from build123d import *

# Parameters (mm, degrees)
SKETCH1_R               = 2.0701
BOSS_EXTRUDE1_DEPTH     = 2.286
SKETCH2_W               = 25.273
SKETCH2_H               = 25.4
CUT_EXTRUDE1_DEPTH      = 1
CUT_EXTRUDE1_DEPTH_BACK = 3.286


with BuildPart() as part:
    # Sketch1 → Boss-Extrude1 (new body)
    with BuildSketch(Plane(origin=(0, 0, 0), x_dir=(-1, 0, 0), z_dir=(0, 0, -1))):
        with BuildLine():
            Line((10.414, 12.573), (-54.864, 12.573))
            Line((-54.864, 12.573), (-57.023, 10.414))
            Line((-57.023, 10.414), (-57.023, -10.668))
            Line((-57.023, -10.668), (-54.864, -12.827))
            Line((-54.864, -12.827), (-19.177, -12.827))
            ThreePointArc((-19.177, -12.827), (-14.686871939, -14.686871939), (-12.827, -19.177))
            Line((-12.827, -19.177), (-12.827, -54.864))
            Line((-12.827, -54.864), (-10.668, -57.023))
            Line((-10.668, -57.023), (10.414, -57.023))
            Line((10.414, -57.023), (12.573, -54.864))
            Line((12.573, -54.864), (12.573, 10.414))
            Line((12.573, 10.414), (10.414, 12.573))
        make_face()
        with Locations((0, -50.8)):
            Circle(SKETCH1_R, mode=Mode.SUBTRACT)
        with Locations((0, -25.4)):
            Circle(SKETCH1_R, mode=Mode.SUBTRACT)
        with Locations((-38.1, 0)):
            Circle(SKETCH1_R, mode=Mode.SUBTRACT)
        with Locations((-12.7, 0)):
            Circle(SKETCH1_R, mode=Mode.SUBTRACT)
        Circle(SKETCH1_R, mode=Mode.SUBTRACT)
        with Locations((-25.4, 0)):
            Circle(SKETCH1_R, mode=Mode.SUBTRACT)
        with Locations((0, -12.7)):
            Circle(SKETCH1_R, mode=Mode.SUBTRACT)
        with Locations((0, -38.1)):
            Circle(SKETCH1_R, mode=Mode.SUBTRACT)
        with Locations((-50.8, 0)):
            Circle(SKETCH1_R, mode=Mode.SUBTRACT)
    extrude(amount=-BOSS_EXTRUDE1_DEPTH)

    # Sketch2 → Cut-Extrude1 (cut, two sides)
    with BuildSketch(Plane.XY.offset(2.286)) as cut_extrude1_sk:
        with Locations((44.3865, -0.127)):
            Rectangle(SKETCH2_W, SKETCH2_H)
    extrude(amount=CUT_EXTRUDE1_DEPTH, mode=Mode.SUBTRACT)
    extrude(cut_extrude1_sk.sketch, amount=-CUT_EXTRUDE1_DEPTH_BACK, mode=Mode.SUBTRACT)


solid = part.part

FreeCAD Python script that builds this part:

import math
import FreeCAD as App
import Part
import Sketcher
Q = App.Units.Quantity

doc = App.newDocument("Part")
body = doc.addObject("PartDesign::Body", "Body")

sketch1 = body.newObject("Sketcher::SketchObject", "Sketch")
sketch1.AttachmentSupport = (doc.getObject("XY_Plane"), [""])
sketch1.MapMode = "FlatFace"
sketch1.addGeometry([
    Part.LineSegment(App.Vector(-10.4, 12.6, 0), App.Vector(54.9, 12.6, 0)),
    Part.LineSegment(App.Vector(54.9, 12.6, 0), App.Vector(57, 10.4, 0)),
    Part.LineSegment(App.Vector(57, 10.4, 0), App.Vector(57, -10.7, 0)),
    Part.LineSegment(App.Vector(57, -10.7, 0), App.Vector(54.9, -12.8, 0)),
    Part.LineSegment(App.Vector(54.9, -12.8, 0), App.Vector(19.2, -12.8, 0)),
    Part.ArcOfCircle(Part.Circle(App.Vector(19.2, -19.2, 0), App.Vector(0, 0, 1), 6.3), math.radians(90), math.radians(180)),
    Part.LineSegment(App.Vector(12.8, -19.2, 0), App.Vector(12.8, -54.9, 0)),
    Part.LineSegment(App.Vector(12.8, -54.9, 0), App.Vector(10.7, -57, 0)),
    Part.LineSegment(App.Vector(10.7, -57, 0), App.Vector(-10.4, -57, 0)),
    Part.LineSegment(App.Vector(-10.4, -57, 0), App.Vector(-12.6, -54.9, 0)),
    Part.LineSegment(App.Vector(-12.6, -54.9, 0), App.Vector(-12.6, 10.4, 0)),
    Part.LineSegment(App.Vector(-12.6, 10.4, 0), App.Vector(-10.4, 12.6, 0)),
    Part.Circle(App.Vector(0, -50.8, 0), App.Vector(0, 0, 1), 2.1),
    Part.Circle(App.Vector(0, -38.1, 0), App.Vector(0, 0, 1), 2.1),
    Part.Circle(App.Vector(50.8, 0, 0), App.Vector(0, 0, 1), 2.1),
    Part.Circle(App.Vector(38.1, 0, 0), App.Vector(0, 0, 1), 2.1),
    Part.Circle(App.Vector(25.4, 0, 0), App.Vector(0, 0, 1), 2.1),
    Part.Circle(App.Vector(0, -25.4, 0), App.Vector(0, 0, 1), 2.1),
    Part.Circle(App.Vector(0, -12.7, 0), App.Vector(0, 0, 1), 2.1),
    Part.Circle(App.Vector(12.7, 0, 0), App.Vector(0, 0, 1), 2.1),
    Part.Circle(App.Vector(0, 0, 0), App.Vector(0, 0, 1), 2.1),
], False)
sketch1.addConstraint([
    Sketcher.Constraint("Coincident", 0, 2, 1, 1),
    Sketcher.Constraint("Coincident", 1, 2, 2, 1),
    Sketcher.Constraint("Coincident", 2, 2, 3, 1),
    Sketcher.Constraint("Coincident", 3, 2, 4, 1),
    Sketcher.Constraint("Tangent", 4, 2, 5, 1),
    Sketcher.Constraint("Tangent", 5, 2, 6, 1),
    Sketcher.Constraint("Coincident", 6, 2, 7, 1),
    Sketcher.Constraint("Coincident", 7, 2, 8, 1),
    Sketcher.Constraint("Coincident", 8, 2, 9, 1),
    Sketcher.Constraint("Coincident", 9, 2, 10, 1),
    Sketcher.Constraint("Coincident", 10, 2, 11, 1),
    Sketcher.Constraint("Coincident", 11, 2, 0, 1),
    Sketcher.Constraint("Horizontal", 0),
    Sketcher.Constraint("Vertical", 2),
    Sketcher.Constraint("Horizontal", 4),
    Sketcher.Constraint("Vertical", 6),
    Sketcher.Constraint("Horizontal", 8),
    Sketcher.Constraint("Vertical", 10),
    Sketcher.Constraint("Coincident", 20, 3, -1, 1),
    Sketcher.Constraint("Equal", 12, 13),
    Sketcher.Constraint("Equal", 13, 14),
    Sketcher.Constraint("Equal", 14, 15),
    Sketcher.Constraint("Equal", 15, 16),
    Sketcher.Constraint("Equal", 16, 17),
    Sketcher.Constraint("Equal", 17, 18),
    Sketcher.Constraint("Equal", 18, 19),
    Sketcher.Constraint("Equal", 19, 20),
    Sketcher.Constraint("PointOnObject", 12, 3, -2),
    Sketcher.Constraint("PointOnObject", 13, 3, -2),
    Sketcher.Constraint("PointOnObject", 14, 3, -1),
    Sketcher.Constraint("PointOnObject", 15, 3, -1),
    Sketcher.Constraint("PointOnObject", 16, 3, -1),
    Sketcher.Constraint("PointOnObject", 17, 3, -2),
    Sketcher.Constraint("PointOnObject", 18, 3, -2),
    Sketcher.Constraint("PointOnObject", 19, 3, -1),
    Sketcher.Constraint("Perpendicular", 1, 3),
    Sketcher.Constraint("Parallel", 3, 7),
    Sketcher.Constraint("Perpendicular", 7, 9),
    Sketcher.Constraint("Perpendicular", 9, 11),
    Sketcher.Constraint("Horizontal", 6, 2, 9, 2),
    Sketcher.Constraint("Horizontal", 1, 2, 10, 2),
    Sketcher.Constraint("Vertical", 0, 2, 3, 2),
    Sketcher.Constraint("Vertical", 8, 2, 11, 2),
    Sketcher.Constraint("Equal", 8, 2),
    Sketcher.Constraint("Equal", 4, 6),
    Sketcher.Constraint("Equal", 0, 10),
    Sketcher.Constraint("Radius", 5, Q("0.25 in")),
    Sketcher.Constraint("Diameter", 12, Q("0.163 in")),
    Sketcher.Constraint("DistanceY", 12, 3, -1, 1, Q("2 in")),
    Sketcher.Constraint("DistanceX", -1, 1, 14, 3, Q("2 in")),
    Sketcher.Constraint("DistanceX", -1, 1, 16, 3, Q("1 in")),
    Sketcher.Constraint("DistanceY", 17, 3, -1, 1, Q("1 in")),
    Sketcher.Constraint("DistanceY", 13, 3, 18, 3, Q("1 in")),
    Sketcher.Constraint("DistanceX", 19, 3, 15, 3, Q("1 in")),
    Sketcher.Constraint("DistanceY", 3, 2, 0, 2, Q("1 in")),
    Sketcher.Constraint("DistanceX", 0, 1, 0, 2, Q("2.57 in")),
    Sketcher.Constraint("DistanceX", 8, 2, 8, 1, Q("0.83 in")),
    Sketcher.Constraint("DistanceY", 13, 3, -1, 1, Q("1.5 in")),
    Sketcher.Constraint("DistanceX", -1, 1, 15, 3, Q("1.5 in")),
    Sketcher.Constraint("DistanceX", -1, 1, 0, 2, Q("2.16 in")),
    Sketcher.Constraint("DistanceY", -1, 1, 1, 2, Q("0.41 in")),
])
pad1 = body.newObject("PartDesign::Pad", "Pad")
pad1.Profile = sketch1
pad1.Length = Q("0.09 in")

sketch2 = body.newObject("Sketcher::SketchObject", "Sketch001")
sketch2.AttachmentSupport = (doc.getObject("XY_Plane"), [""])
sketch2.MapMode = "FlatFace"
sketch2.AttachmentOffset = App.Placement(App.Vector(0, 0, 0.09 * 25.4), App.Rotation())
sketch2.addGeometry([
    Part.LineSegment(App.Vector(32, 13, 0), App.Vector(32, -13, 0)),
    Part.LineSegment(App.Vector(32, -13, 0), App.Vector(57, -13, 0)),
    Part.LineSegment(App.Vector(57, -13, 0), App.Vector(57, 13, 0)),
    Part.LineSegment(App.Vector(57, 13, 0), App.Vector(32, 13, 0)),
], False)
sketch2.addConstraint([
    Sketcher.Constraint("Coincident", 0, 2, 1, 1),
    Sketcher.Constraint("Coincident", 1, 2, 2, 1),
    Sketcher.Constraint("Coincident", 2, 2, 3, 1),
    Sketcher.Constraint("Coincident", 3, 2, 0, 1),
    Sketcher.Constraint("Vertical", 0),
    Sketcher.Constraint("Horizontal", 1),
    Sketcher.Constraint("Vertical", 2),
    Sketcher.Constraint("Horizontal", 3),
    Sketcher.Constraint("DistanceY", 0, 2, 0, 1, Q("1 in")),
    Sketcher.Constraint("DistanceX", 1, 1, 1, 2, Q("0.995 in")),
    Sketcher.Constraint("DistanceX", -1, 1, 0, 2, Q("1.25 in")),
    Sketcher.Constraint("DistanceY", 0, 2, -1, 1, Q("0.505 in")),
])
pocket1 = body.newObject("PartDesign::Pocket", "Pocket")
pocket1.Profile = sketch2
pocket1.Type = "ThroughAll"
pocket1.Midplane = True

doc.recompute()
